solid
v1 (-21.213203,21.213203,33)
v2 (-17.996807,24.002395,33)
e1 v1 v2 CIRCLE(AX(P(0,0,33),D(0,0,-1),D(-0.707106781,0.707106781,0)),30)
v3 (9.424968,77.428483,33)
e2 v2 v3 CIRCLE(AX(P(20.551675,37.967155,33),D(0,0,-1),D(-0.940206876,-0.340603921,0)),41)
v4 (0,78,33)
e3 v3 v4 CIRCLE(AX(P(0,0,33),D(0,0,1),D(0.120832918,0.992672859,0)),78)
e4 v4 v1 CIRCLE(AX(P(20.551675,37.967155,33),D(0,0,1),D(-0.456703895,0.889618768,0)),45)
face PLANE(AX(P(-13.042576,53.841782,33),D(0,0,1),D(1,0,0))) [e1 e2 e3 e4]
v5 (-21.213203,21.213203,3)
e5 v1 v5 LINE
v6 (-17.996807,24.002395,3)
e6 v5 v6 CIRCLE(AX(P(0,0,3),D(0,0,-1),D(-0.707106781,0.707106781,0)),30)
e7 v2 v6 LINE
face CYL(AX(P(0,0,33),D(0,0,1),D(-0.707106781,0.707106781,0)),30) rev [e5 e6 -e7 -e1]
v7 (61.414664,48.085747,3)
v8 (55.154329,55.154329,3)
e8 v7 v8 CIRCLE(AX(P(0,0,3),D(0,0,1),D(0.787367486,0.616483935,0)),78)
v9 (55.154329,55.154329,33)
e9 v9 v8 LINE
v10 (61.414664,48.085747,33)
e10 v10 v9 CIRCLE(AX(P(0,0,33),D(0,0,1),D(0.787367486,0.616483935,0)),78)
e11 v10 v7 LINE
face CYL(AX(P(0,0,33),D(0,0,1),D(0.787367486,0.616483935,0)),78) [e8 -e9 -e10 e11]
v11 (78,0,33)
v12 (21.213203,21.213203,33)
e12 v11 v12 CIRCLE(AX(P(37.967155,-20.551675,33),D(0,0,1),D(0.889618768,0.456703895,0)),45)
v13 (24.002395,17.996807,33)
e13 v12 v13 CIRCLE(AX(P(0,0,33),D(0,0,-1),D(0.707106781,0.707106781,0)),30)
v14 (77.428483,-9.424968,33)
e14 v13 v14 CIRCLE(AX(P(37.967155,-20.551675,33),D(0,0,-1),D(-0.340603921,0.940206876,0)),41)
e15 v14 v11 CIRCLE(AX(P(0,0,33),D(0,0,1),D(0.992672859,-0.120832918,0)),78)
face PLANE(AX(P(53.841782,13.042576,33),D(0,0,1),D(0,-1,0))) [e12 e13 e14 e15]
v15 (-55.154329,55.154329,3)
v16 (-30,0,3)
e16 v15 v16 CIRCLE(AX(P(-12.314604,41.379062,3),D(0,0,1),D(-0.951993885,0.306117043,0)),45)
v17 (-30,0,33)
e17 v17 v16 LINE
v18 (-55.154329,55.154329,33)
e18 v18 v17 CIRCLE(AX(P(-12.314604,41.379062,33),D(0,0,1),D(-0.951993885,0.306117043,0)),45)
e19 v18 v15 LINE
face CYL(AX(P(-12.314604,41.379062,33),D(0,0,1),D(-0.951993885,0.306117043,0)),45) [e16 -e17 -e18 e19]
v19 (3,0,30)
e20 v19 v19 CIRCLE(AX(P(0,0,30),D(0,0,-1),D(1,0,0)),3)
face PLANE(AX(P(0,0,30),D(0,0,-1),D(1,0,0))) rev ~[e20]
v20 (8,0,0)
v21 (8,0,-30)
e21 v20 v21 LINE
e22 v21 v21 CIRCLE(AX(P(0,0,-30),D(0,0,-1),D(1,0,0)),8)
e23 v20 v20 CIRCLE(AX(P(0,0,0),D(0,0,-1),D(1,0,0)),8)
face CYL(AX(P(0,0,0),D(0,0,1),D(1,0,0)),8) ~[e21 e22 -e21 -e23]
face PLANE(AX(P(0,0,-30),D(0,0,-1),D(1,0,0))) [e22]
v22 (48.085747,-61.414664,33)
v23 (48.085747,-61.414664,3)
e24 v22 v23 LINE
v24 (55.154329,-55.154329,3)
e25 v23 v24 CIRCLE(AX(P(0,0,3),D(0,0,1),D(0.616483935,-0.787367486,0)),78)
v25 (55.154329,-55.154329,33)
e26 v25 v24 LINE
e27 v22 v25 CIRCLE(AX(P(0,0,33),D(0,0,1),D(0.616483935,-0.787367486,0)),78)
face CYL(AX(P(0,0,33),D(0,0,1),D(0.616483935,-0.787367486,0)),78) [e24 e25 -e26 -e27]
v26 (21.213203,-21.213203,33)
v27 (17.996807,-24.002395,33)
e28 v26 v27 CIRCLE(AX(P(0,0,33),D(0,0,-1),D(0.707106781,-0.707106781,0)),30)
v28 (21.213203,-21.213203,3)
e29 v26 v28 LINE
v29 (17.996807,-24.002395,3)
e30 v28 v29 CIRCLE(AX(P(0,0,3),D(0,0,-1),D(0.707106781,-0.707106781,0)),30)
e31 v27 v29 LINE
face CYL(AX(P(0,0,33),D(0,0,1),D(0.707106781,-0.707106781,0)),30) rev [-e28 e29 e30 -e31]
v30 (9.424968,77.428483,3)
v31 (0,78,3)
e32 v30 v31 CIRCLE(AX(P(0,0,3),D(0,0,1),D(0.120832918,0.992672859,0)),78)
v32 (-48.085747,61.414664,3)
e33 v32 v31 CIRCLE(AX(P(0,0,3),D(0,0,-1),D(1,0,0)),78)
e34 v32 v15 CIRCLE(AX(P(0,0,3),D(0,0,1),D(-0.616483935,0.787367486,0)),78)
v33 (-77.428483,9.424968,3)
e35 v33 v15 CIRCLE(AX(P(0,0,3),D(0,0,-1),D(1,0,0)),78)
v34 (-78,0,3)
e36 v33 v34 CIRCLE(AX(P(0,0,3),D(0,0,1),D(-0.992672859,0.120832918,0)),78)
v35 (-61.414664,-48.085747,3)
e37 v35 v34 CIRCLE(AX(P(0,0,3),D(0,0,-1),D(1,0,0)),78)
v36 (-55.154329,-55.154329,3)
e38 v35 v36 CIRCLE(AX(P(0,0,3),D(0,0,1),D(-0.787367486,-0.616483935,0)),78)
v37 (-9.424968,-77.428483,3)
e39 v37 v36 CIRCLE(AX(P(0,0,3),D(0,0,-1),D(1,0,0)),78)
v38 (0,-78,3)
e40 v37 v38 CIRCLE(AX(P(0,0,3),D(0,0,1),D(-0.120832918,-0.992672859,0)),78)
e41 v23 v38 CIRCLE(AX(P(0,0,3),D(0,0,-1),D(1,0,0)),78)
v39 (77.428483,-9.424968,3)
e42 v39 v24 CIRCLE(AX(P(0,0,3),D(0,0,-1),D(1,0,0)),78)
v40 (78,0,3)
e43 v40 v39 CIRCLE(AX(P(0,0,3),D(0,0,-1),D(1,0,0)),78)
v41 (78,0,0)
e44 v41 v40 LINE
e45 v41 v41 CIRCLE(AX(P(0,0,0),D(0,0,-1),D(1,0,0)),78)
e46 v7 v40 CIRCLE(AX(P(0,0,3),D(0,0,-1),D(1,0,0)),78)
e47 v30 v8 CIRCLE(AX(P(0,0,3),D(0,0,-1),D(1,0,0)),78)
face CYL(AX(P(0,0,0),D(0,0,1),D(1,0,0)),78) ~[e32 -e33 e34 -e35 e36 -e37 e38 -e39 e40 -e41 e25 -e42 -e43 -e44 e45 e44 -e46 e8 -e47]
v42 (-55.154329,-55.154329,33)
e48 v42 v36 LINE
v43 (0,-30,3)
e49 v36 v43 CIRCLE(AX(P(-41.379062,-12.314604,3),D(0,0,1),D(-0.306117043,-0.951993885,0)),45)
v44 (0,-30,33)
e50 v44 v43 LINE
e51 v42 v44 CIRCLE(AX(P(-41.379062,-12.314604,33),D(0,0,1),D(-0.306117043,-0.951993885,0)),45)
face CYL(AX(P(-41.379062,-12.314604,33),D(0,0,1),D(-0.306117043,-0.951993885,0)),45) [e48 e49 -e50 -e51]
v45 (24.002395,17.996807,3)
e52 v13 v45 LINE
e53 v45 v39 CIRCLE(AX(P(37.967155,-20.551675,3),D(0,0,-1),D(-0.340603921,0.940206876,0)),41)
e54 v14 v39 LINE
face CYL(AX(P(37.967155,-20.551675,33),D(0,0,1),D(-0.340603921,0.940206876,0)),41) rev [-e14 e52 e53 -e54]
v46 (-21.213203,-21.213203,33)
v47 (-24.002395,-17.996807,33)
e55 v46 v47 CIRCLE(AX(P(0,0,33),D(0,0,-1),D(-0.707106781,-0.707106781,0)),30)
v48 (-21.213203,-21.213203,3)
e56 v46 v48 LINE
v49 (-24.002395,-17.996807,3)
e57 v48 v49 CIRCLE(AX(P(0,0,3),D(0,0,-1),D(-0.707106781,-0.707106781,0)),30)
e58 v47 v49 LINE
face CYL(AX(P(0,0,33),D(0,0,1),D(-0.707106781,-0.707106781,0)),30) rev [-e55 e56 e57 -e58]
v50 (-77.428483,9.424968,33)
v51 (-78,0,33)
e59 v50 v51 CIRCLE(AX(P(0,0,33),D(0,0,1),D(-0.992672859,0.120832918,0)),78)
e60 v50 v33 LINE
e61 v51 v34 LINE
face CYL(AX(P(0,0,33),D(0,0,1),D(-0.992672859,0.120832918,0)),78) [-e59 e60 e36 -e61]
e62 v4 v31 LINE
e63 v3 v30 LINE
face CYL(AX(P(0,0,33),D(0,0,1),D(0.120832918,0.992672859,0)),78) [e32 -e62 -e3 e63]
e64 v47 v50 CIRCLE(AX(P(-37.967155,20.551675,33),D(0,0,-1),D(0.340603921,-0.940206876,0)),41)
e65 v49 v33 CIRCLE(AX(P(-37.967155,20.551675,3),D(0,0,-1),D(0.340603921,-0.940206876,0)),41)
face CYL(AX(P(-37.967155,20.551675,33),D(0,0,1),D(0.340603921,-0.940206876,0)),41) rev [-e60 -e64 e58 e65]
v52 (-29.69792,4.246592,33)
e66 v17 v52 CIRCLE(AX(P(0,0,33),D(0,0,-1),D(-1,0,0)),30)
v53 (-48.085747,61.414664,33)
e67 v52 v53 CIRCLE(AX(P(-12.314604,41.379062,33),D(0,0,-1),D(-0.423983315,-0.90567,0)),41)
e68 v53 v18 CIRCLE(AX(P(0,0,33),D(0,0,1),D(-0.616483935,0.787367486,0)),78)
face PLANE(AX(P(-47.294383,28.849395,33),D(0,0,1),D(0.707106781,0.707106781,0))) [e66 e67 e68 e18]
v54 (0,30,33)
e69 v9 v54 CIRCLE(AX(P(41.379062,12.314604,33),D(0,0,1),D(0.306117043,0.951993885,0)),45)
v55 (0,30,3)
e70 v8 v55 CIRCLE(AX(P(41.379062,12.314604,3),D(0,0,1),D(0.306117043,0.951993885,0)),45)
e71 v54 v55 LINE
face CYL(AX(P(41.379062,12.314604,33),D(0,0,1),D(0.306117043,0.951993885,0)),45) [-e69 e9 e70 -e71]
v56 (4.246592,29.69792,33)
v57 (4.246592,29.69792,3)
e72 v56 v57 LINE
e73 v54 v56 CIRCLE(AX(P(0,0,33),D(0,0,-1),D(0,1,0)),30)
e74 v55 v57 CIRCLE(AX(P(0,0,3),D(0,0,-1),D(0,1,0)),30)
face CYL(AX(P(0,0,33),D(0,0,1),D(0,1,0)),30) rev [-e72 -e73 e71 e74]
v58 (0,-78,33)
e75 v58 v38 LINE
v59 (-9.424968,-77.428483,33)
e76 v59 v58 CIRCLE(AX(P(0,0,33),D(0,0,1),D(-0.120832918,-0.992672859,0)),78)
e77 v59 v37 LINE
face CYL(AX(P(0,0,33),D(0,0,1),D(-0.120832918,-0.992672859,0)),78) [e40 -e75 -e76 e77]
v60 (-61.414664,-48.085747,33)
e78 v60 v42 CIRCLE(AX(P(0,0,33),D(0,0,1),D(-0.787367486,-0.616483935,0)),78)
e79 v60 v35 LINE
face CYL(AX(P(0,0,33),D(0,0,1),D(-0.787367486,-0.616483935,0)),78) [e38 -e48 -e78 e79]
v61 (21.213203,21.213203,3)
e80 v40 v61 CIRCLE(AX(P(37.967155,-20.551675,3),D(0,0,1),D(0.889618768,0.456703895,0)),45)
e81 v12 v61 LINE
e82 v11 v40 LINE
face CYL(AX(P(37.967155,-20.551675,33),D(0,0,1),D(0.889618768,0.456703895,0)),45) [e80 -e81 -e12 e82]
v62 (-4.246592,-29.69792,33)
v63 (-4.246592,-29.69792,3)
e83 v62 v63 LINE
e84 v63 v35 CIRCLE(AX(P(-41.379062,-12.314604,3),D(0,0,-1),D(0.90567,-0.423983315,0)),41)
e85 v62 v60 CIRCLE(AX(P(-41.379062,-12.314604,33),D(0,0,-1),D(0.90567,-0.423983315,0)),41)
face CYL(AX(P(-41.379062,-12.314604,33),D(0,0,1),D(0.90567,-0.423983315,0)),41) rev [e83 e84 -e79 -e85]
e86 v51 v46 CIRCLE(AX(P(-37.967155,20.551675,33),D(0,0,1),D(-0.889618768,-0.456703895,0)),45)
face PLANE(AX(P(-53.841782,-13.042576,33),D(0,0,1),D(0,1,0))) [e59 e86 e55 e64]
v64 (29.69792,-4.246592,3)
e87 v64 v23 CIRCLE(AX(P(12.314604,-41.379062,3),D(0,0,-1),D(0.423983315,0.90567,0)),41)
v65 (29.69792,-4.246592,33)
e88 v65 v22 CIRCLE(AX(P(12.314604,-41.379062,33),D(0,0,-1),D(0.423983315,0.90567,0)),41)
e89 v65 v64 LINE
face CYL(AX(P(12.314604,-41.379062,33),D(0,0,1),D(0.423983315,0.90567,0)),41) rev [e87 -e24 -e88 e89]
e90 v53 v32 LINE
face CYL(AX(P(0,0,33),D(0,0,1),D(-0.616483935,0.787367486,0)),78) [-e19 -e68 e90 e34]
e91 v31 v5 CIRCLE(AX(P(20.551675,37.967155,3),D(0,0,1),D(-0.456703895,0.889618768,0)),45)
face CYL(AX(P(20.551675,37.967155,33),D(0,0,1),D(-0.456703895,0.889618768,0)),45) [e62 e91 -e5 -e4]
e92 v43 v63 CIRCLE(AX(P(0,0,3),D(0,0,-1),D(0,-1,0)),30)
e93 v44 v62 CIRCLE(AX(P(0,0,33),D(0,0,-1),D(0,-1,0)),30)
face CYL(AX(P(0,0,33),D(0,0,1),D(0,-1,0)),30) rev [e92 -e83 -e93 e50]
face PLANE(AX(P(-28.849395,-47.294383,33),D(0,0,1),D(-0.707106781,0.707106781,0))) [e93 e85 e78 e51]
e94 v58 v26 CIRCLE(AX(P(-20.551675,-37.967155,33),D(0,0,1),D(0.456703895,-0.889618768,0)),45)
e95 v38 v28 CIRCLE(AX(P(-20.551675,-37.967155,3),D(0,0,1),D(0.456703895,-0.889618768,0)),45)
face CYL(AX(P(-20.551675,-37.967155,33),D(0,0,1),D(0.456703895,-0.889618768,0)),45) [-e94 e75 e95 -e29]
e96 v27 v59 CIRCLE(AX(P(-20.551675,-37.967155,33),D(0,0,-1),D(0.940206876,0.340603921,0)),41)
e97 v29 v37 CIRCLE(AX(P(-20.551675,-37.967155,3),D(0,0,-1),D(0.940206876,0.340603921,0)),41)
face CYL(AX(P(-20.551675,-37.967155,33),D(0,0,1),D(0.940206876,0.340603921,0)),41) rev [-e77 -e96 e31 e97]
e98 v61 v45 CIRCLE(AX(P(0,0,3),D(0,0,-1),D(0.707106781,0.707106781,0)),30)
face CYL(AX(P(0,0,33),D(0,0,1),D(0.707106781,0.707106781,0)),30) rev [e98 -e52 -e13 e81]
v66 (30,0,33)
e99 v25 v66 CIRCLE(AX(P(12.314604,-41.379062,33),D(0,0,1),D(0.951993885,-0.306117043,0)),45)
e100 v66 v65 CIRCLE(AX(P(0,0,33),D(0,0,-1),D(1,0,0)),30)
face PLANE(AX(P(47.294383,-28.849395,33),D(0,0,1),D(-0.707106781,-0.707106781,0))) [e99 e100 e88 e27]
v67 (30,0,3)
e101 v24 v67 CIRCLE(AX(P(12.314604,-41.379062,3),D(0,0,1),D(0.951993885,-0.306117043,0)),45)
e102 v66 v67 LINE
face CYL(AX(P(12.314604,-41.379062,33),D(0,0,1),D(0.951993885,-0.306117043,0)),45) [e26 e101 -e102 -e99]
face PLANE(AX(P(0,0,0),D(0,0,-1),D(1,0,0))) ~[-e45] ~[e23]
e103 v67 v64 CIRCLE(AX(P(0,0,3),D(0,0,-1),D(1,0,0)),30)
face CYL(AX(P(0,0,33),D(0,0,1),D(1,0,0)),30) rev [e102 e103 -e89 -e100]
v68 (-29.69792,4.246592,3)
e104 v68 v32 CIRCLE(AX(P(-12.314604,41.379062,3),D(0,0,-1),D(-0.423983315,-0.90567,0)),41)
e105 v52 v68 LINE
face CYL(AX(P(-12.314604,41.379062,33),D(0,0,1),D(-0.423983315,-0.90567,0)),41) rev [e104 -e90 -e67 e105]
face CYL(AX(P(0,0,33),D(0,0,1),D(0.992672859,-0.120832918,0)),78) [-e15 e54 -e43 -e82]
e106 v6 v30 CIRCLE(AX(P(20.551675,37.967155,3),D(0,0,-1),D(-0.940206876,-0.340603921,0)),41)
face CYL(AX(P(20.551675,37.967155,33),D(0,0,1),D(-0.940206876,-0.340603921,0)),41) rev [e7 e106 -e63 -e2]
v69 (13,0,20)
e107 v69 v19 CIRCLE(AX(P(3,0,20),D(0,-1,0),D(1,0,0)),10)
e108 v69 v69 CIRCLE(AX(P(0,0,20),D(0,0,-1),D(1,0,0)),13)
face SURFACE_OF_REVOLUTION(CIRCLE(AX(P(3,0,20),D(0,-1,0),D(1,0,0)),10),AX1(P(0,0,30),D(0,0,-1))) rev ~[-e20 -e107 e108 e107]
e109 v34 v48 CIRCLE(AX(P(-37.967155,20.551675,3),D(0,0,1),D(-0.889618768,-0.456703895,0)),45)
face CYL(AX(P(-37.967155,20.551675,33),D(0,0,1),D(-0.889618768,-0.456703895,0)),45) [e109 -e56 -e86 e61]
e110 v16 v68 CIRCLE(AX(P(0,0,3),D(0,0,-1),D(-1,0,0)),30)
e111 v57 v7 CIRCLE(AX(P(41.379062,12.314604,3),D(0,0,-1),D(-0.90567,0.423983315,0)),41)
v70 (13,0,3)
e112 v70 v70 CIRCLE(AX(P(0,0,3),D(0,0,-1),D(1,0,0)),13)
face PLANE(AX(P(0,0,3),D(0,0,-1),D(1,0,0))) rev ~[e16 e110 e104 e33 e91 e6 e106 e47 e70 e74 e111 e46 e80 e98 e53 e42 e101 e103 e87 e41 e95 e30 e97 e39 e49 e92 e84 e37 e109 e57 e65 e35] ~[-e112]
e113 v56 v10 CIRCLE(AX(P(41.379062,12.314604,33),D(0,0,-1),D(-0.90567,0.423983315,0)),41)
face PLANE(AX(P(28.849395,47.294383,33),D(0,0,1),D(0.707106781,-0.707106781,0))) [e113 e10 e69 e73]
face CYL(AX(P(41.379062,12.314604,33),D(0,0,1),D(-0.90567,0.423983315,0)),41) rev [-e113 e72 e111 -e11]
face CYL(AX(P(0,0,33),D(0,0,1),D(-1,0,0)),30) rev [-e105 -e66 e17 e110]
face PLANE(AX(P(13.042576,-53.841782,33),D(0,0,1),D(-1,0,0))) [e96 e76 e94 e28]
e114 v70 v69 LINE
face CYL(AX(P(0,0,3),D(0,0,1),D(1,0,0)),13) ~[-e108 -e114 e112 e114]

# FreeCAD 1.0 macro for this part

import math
import FreeCAD as App
import Part
import Sketcher

doc = App.newDocument("Part")
body = doc.addObject("PartDesign::Body", "Body")

# Sketch on YZ plane
sketch1 = body.newObject("Sketcher::SketchObject", "Sketch")
sketch1.AttachmentSupport = (doc.getObject("YZ_Plane"), [""])
sketch1.MapMode = "FlatFace"
sketch1.addGeometry([
    Part.LineSegment(App.Vector(0, 0, 0), App.Vector(78, 0, 0)),  # 0
    Part.LineSegment(App.Vector(78, 0, 0), App.Vector(78, 3, 0)),  # 1
    Part.LineSegment(App.Vector(78, 3, 0), App.Vector(13, 3, 0)),  # 2
    Part.LineSegment(App.Vector(13, 3, 0), App.Vector(13, 20, 0)),  # 3
    Part.ArcOfCircle(Part.Circle(App.Vector(3, 20, 0), App.Vector(0, 0, 1), 10), math.radians(0), math.radians(90)),  # 4
    Part.LineSegment(App.Vector(3, 30, 0), App.Vector(0, 30, 0)),  # 5
    Part.LineSegment(App.Vector(0, 30, 0), App.Vector(0, 0, 0)),  # 6
], False)
sketch1.addConstraint([
    Sketcher.Constraint("Coincident", 0, 2, 1, 1),
    Sketcher.Constraint("Coincident", 1, 2, 2, 1),
    Sketcher.Constraint("Coincident", 2, 2, 3, 1),
    Sketcher.Constraint("Tangent", 3, 2, 4, 1),
    Sketcher.Constraint("Tangent", 4, 2, 5, 1),
    Sketcher.Constraint("Coincident", 5, 2, 6, 1),
    Sketcher.Constraint("Coincident", 6, 2, 0, 1),
    Sketcher.Constraint("Horizontal", 0),
    Sketcher.Constraint("Vertical", 1),
    Sketcher.Constraint("Horizontal", 2),
    Sketcher.Constraint("Vertical", 3),
    Sketcher.Constraint("Horizontal", 5),
    Sketcher.Constraint("Vertical", 6),
    Sketcher.Constraint("Coincident", 6, 2, -1, 1),
    Sketcher.Constraint("Equal", 5, 1),
    Sketcher.Constraint("Radius", 4, 10.0),
    Sketcher.Constraint("DistanceX", 0, 1, 0, 2, 78.0),
    Sketcher.Constraint("DistanceX", 2, 2, 2, 1, 65.0),
    Sketcher.Constraint("DistanceY", 3, 1, 3, 2, 17.0),
])
revolution = body.newObject("PartDesign::Revolution", "Revolution")
revolution.Profile = sketch1
revolution.ReferenceAxis = (sketch1, ["V_Axis"])
revolution.Angle = 360

# Sketch on XY plane
sketch2 = body.newObject("Sketcher::SketchObject", "Sketch001")
sketch2.AttachmentSupport = (doc.getObject("XY_Plane"), [""])
sketch2.MapMode = "FlatFace"
sketch2.AttachmentOffset = App.Placement(App.Vector(0, 0, 33), App.Rotation())
sketch2.addGeometry([
    Part.ArcOfCircle(Part.Circle(App.Vector(0, 0, 0), App.Vector(0, 0, 1), 30), math.radians(126.862274), math.radians(135)),
    Part.ArcOfCircle(Part.Circle(App.Vector(20.551675, 37.967155, 0), App.Vector(0, 0, 1), 41), math.radians(105.746587), math.radians(199.913672)),
    Part.ArcOfCircle(Part.Circle(App.Vector(0, 0, 0), App.Vector(0, 0, 1), 78), math.radians(83.059825), math.radians(90)),
    Part.ArcOfCircle(Part.Circle(App.Vector(20.551675, 37.967155, 0), App.Vector(0, 0, 1), 45), math.radians(117.17462), math.radians(201.858154)),
], False)
sketch2.addConstraint([
    Sketcher.Constraint("Coincident", 0, 1, 1, 2),
    Sketcher.Constraint("Coincident", 1, 1, 2, 1),
    Sketcher.Constraint("Coincident", 2, 2, 3, 1),
    Sketcher.Constraint("Coincident", 3, 2, 0, 2),
    Sketcher.Constraint("Coincident", 0, 3, -1, 1),
    Sketcher.Constraint("Coincident", 2, 3, -1, 1),
    Sketcher.Constraint("Coincident", 3, 3, 1, 3),
    Sketcher.Constraint("PointOnObject", 2, 2, -2),
    Sketcher.Constraint("Radius", 0, 30.0),
    Sketcher.Constraint("Radius", 1, 41.0),
    Sketcher.Constraint("Radius", 2, 78.0),
    Sketcher.Constraint("Radius", 3, 45.0),
    Sketcher.Constraint("DistanceY", 0, 1, 3, 3, 13.964761),
])
pad1 = body.newObject("PartDesign::Pad", "Pad")
pad1.Profile = sketch2
pad1.Length = 30
pad1.Reversed = True
doc.recompute()

polarpattern = body.newObject("PartDesign::PolarPattern", "PolarPattern")
polarpattern.Originals = [pad1]
polarpattern.Axis = (doc.getObject("Z_Axis"), [""])
polarpattern.Angle = 360
polarpattern.Occurrences = 8
body.Tip = polarpattern

# Sketch on XY plane
sketch3 = body.newObject("Sketcher::SketchObject", "Sketch002")
sketch3.AttachmentSupport = (doc.getObject("XY_Plane"), [""])
sketch3.MapMode = "FlatFace"
sketch3.addGeometry(Part.Circle(App.Vector(0, 0, 0), App.Vector(0, 0, 1), 8), False)
sketch3.addConstraint([
    Sketcher.Constraint("Coincident", 0, 3, -1, 1),
    Sketcher.Constraint("Diameter", 0, 16.0),
])
pad2 = body.newObject("PartDesign::Pad", "Pad001")
pad2.Profile = sketch3
pad2.Length = 30
pad2.Reversed = True

doc.recompute()
